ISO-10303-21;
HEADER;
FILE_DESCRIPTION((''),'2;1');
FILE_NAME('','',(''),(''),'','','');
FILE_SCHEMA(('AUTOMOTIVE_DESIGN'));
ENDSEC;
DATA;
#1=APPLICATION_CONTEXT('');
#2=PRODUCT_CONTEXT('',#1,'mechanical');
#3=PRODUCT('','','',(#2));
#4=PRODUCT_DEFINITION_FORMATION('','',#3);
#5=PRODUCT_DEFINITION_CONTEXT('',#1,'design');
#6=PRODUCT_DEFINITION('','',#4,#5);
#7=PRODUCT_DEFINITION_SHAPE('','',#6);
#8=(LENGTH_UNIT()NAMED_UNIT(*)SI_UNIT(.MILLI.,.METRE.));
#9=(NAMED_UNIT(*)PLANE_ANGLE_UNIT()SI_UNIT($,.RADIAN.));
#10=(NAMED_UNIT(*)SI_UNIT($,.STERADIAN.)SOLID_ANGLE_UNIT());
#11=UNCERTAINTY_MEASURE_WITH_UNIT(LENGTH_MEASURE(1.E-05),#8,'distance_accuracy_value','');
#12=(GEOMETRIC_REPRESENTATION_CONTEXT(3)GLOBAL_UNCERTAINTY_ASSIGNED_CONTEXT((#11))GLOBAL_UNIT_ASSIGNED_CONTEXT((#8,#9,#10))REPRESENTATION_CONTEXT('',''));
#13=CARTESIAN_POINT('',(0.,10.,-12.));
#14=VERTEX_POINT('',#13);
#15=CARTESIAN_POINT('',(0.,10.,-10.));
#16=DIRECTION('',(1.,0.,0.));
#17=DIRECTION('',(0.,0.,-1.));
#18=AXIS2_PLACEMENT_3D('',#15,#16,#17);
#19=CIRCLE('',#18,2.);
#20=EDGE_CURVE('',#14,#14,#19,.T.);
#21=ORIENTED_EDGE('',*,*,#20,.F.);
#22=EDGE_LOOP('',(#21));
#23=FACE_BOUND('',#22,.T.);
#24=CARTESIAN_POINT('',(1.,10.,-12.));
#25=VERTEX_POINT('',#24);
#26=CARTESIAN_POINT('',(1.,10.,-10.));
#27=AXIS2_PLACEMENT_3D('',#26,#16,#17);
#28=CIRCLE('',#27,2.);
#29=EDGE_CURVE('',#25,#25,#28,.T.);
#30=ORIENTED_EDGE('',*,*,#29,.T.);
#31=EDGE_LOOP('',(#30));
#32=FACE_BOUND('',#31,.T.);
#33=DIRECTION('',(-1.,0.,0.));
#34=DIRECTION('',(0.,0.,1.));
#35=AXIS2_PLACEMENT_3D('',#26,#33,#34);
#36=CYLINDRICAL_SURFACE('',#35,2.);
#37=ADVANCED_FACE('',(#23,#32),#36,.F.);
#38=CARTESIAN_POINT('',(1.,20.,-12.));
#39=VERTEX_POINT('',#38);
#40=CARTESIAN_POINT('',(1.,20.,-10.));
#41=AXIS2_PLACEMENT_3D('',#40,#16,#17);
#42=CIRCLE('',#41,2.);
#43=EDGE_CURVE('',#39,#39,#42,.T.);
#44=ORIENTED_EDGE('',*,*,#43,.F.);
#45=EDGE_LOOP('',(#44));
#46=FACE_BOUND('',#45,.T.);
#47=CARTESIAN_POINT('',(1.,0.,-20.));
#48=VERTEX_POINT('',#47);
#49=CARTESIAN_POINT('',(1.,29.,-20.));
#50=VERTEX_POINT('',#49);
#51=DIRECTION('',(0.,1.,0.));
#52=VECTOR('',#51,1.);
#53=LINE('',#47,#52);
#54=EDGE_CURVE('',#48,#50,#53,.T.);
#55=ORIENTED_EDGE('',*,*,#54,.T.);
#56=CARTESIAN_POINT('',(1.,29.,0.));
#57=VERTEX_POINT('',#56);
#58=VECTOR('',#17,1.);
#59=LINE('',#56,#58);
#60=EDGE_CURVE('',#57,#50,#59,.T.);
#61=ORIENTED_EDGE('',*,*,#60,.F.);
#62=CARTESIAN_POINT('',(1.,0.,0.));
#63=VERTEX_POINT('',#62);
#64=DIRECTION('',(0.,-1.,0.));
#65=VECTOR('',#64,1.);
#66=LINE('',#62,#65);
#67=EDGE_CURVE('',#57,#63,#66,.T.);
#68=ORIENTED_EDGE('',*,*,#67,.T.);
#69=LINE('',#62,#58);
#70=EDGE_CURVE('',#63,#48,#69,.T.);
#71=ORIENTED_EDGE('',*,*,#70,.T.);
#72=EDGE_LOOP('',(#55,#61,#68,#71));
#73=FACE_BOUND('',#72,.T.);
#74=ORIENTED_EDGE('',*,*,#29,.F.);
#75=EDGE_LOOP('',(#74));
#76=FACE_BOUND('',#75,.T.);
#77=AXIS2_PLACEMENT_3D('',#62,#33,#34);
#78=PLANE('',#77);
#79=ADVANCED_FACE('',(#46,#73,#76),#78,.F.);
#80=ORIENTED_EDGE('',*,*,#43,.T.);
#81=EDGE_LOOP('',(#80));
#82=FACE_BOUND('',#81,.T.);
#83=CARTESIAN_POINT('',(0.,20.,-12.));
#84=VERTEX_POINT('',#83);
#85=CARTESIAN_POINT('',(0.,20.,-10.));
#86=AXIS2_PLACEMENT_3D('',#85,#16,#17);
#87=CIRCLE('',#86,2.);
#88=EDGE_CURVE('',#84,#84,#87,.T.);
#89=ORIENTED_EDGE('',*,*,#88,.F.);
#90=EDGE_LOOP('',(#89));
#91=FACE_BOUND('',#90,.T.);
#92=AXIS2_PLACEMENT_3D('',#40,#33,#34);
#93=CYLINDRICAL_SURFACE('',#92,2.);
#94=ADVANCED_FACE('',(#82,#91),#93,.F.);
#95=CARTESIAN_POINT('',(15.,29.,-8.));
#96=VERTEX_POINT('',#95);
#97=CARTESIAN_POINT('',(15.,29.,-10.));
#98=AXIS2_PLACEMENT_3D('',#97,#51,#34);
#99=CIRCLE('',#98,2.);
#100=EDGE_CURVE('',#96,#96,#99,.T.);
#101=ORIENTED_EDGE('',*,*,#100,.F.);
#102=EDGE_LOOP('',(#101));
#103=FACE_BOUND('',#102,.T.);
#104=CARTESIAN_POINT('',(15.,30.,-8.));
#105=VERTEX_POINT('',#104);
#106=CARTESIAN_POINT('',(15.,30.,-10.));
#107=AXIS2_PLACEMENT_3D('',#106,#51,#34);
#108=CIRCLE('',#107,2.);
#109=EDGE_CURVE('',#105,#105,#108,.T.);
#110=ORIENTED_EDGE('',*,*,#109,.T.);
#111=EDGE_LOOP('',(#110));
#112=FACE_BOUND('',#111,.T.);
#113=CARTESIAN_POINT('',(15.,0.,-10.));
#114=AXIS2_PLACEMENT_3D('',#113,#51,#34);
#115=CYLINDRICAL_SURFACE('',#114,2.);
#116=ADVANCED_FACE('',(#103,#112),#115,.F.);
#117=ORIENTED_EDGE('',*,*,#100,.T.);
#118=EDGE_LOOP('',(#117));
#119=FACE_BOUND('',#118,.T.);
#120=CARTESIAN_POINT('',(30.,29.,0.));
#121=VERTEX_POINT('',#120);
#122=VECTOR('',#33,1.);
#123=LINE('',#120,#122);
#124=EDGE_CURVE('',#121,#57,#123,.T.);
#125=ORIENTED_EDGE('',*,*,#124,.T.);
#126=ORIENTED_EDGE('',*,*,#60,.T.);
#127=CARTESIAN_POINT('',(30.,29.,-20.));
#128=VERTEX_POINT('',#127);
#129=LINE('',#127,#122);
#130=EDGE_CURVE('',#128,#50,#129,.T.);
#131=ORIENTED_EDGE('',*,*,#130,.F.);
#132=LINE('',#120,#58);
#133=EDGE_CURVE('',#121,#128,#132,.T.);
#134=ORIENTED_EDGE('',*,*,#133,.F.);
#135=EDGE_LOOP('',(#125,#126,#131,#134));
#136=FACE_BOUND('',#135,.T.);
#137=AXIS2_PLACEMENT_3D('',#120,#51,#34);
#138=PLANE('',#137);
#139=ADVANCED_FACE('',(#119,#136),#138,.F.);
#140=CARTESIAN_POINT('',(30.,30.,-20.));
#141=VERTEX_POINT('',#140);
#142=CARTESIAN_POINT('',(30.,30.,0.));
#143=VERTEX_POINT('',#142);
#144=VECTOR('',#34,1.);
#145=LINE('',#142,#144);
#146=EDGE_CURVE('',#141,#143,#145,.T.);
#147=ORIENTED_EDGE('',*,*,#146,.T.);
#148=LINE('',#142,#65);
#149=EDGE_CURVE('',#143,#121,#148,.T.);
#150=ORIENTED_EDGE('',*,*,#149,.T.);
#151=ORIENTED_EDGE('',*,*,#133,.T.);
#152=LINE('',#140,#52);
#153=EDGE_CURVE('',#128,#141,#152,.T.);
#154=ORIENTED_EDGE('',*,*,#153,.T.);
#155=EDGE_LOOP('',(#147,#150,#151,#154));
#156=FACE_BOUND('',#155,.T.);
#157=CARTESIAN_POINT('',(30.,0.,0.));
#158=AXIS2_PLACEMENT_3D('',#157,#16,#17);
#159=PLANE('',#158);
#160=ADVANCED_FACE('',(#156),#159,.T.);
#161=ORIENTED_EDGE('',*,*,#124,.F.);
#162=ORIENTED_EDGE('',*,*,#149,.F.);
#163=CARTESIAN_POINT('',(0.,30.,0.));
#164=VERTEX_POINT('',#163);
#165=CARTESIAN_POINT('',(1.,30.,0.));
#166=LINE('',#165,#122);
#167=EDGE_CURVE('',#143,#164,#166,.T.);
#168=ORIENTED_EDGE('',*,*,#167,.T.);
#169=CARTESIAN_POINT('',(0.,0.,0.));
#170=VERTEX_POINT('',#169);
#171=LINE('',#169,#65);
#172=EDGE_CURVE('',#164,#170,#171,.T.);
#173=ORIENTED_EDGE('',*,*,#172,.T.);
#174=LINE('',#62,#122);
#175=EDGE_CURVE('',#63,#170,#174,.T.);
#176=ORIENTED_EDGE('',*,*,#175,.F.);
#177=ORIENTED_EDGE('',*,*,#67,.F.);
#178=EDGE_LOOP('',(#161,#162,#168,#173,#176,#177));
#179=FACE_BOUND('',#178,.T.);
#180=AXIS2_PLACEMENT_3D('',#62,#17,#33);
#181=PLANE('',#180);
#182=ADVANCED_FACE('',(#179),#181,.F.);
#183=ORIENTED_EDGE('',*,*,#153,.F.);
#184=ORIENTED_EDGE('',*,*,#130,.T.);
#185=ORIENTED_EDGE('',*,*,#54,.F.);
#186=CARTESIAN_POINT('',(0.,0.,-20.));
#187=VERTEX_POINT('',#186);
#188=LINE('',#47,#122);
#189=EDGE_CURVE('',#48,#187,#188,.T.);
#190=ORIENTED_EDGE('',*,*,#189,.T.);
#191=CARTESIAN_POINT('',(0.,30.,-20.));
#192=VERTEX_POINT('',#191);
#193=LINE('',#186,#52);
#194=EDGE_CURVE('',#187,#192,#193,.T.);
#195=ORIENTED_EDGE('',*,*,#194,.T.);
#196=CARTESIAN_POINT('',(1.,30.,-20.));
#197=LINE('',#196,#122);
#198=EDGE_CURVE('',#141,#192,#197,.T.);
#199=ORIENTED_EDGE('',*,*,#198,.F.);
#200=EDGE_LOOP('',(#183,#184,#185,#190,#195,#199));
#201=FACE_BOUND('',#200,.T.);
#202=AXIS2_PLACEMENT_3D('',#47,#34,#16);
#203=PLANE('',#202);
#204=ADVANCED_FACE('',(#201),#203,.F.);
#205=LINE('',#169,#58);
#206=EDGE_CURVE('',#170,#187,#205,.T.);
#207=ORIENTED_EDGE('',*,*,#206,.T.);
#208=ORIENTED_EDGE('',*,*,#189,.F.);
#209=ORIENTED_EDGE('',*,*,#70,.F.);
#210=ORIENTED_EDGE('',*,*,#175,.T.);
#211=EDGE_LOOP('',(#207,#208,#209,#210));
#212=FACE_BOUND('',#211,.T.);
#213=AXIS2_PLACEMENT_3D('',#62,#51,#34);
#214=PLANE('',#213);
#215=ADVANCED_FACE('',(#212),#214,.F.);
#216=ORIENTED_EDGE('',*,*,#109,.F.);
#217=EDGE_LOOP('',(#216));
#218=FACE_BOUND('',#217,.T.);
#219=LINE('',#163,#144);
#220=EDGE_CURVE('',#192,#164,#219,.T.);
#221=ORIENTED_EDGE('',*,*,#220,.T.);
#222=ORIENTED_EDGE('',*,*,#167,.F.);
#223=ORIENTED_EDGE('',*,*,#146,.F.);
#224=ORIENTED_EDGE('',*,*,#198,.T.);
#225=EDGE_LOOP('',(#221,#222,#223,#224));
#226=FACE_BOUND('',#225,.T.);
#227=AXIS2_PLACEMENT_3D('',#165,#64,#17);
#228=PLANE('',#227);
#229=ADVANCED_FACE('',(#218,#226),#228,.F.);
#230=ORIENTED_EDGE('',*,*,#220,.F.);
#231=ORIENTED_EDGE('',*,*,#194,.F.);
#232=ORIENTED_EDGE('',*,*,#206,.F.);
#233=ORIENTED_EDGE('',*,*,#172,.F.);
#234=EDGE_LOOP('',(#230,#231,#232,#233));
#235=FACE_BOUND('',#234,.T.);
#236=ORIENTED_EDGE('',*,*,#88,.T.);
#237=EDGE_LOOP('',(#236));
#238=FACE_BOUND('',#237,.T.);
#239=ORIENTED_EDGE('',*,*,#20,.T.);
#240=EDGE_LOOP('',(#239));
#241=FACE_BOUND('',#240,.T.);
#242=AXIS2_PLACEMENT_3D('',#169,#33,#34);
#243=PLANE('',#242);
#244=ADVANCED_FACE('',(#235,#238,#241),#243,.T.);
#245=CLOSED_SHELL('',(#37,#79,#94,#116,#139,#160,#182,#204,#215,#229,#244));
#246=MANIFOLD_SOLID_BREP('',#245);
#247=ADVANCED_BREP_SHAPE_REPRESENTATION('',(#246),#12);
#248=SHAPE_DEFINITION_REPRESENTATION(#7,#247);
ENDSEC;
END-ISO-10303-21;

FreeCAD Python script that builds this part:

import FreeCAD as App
import Part
import Sketcher
Q = App.Units.Quantity


def add_polygon(sketch, points):
    """Adds a closed chain of lines whose ends are joined by coincident constraints."""
    first, n = sketch.GeometryCount, len(points)
    for a, b in zip(points, points[1:] + points[:1]):
        sketch.addGeometry(Part.LineSegment(App.Vector(*a, 0), App.Vector(*b, 0)), False)
    for i in range(n):
        sketch.addConstraint(Sketcher.Constraint("Coincident", first + i, 2, first + (i + 1) % n, 1))

doc = App.newDocument("Part")
params = doc.addObject("Spreadsheet::Sheet", "Params")
for row, (alias, value) in enumerate([
    ("sketch1_diameter", "4 mm"),
    ("sketch1_width", "30 mm"),
    ("sketch1_height", "20 mm"),
    ("pad1_length", "1 mm"),
    ("sketch2_width", "1 mm"),
    ("sketch2_height", "20 mm"),
    ("pad2_length", "29 mm"),
    ("sketch3_diameter", "4 mm"),
    ("pocket1_length", "30 mm"),
], start=1):
    params.set(f"A{row}", alias)
    params.set(f"B{row}", "=" + value)
    params.setAlias(f"B{row}", alias)

body = doc.addObject("PartDesign::Body", "Body")

# Sketch on YZ plane
sketch1 = body.newObject("Sketcher::SketchObject", "Sketch")
sketch1.AttachmentSupport = (doc.getObject("YZ_Plane"), [""])
sketch1.MapMode = "FlatFace"
add_polygon(sketch1, [(30, 0), (0, 0), (0, -20), (30, -20)])  # lines 0-3
sketch1.addGeometry(Part.Circle(App.Vector(10, -10, 0), App.Vector(0, 0, 1), 2), False)  # 4
sketch1.addGeometry(Part.Circle(App.Vector(20, -10, 0), App.Vector(0, 0, 1), 2), False)  # 5
sketch1.addConstraint([
    Sketcher.Constraint("Horizontal", 0),
    Sketcher.Constraint("Vertical", 1),
    Sketcher.Constraint("Horizontal", 2),
    Sketcher.Constraint("Vertical", 3),
    Sketcher.Constraint("Coincident", 0, 2, -1, 1),
    Sketcher.Constraint("Equal", 4, 5),
    Sketcher.Constraint("Horizontal", 4, 3, 5, 3),
    Sketcher.Constraint("Diameter", 4, Q("4 mm")),
    Sketcher.Constraint("DistanceX", 0, 2, 0, 1, Q("30 mm")),
    Sketcher.Constraint("DistanceY", 1, 2, 1, 1, Q("20 mm")),
    Sketcher.Constraint("DistanceX", -1, 1, 4, 3, Q("10 mm")),
    Sketcher.Constraint("DistanceY", 4, 3, -1, 1, Q("10 mm")),
    Sketcher.Constraint("DistanceX", -1, 1, 5, 3, Q("20 mm")),
])
sketch1.setExpression("Constraints[11]", "Params.sketch1_diameter")
sketch1.setExpression("Constraints[12]", "Params.sketch1_width")
sketch1.setExpression("Constraints[13]", "Params.sketch1_height")
pad1 = body.newObject("PartDesign::Pad", "Pad")
pad1.Profile = sketch1
pad1.setExpression("Length", "Params.pad1_length")

# Sketch on YZ plane
sketch2 = body.newObject("Sketcher::SketchObject", "Sketch001")
sketch2.AttachmentSupport = (doc.getObject("YZ_Plane"), [""])
sketch2.MapMode = "FlatFace"
sketch2.AttachmentOffset = App.Placement(App.Vector(0, 0, 1), App.Rotation())
add_polygon(sketch2, [(30, 0), (29, 0), (29, -20), (30, -20)])  # lines 0-3
sketch2.addConstraint([
    Sketcher.Constraint("Horizontal", 0),
    Sketcher.Constraint("Vertical", 1),
    Sketcher.Constraint("Horizontal", 2),
    Sketcher.Constraint("Vertical", 3),
    Sketcher.Constraint("PointOnObject", 0, 2, -1),
    Sketcher.Constraint("DistanceX", 0, 2, 0, 1, Q("1 mm")),
    Sketcher.Constraint("DistanceY", 1, 2, 1, 1, Q("20 mm")),
    Sketcher.Constraint("DistanceX", -1, 1, 0, 2, Q("29 mm")),
])
sketch2.setExpression("Constraints[9]", "Params.sketch2_width")
sketch2.setExpression("Constraints[10]", "Params.sketch2_height")
pad2 = body.newObject("PartDesign::Pad", "Pad001")
pad2.Profile = sketch2
pad2.setExpression("Length", "Params.pad2_length")

# Sketch on XZ plane
sketch3 = body.newObject("Sketcher::SketchObject", "Sketch002")
sketch3.AttachmentSupport = (doc.getObject("XZ_Plane"), [""])
sketch3.MapMode = "FlatFace"
sketch3.AttachmentOffset = App.Placement(App.Vector(0, 0, -30), App.Rotation())
sketch3.addGeometry(Part.Circle(App.Vector(15, -10, 0), App.Vector(0, 0, 1), 2), False)
sketch3.addConstraint([
    Sketcher.Constraint("Diameter", 0, Q("4 mm")),
    Sketcher.Constraint("DistanceX", -1, 1, 0, 3, Q("15 mm")),
    Sketcher.Constraint("DistanceY", 0, 3, -1, 1, Q("10 mm")),
])
sketch3.setExpression("Constraints[0]", "Params.sketch3_diameter")
pocket1 = body.newObject("PartDesign::Pocket", "Pocket")
pocket1.Profile = sketch3
pocket1.setExpression("Length", "Params.pocket1_length")
pocket1.Reversed = True

doc.recompute()
